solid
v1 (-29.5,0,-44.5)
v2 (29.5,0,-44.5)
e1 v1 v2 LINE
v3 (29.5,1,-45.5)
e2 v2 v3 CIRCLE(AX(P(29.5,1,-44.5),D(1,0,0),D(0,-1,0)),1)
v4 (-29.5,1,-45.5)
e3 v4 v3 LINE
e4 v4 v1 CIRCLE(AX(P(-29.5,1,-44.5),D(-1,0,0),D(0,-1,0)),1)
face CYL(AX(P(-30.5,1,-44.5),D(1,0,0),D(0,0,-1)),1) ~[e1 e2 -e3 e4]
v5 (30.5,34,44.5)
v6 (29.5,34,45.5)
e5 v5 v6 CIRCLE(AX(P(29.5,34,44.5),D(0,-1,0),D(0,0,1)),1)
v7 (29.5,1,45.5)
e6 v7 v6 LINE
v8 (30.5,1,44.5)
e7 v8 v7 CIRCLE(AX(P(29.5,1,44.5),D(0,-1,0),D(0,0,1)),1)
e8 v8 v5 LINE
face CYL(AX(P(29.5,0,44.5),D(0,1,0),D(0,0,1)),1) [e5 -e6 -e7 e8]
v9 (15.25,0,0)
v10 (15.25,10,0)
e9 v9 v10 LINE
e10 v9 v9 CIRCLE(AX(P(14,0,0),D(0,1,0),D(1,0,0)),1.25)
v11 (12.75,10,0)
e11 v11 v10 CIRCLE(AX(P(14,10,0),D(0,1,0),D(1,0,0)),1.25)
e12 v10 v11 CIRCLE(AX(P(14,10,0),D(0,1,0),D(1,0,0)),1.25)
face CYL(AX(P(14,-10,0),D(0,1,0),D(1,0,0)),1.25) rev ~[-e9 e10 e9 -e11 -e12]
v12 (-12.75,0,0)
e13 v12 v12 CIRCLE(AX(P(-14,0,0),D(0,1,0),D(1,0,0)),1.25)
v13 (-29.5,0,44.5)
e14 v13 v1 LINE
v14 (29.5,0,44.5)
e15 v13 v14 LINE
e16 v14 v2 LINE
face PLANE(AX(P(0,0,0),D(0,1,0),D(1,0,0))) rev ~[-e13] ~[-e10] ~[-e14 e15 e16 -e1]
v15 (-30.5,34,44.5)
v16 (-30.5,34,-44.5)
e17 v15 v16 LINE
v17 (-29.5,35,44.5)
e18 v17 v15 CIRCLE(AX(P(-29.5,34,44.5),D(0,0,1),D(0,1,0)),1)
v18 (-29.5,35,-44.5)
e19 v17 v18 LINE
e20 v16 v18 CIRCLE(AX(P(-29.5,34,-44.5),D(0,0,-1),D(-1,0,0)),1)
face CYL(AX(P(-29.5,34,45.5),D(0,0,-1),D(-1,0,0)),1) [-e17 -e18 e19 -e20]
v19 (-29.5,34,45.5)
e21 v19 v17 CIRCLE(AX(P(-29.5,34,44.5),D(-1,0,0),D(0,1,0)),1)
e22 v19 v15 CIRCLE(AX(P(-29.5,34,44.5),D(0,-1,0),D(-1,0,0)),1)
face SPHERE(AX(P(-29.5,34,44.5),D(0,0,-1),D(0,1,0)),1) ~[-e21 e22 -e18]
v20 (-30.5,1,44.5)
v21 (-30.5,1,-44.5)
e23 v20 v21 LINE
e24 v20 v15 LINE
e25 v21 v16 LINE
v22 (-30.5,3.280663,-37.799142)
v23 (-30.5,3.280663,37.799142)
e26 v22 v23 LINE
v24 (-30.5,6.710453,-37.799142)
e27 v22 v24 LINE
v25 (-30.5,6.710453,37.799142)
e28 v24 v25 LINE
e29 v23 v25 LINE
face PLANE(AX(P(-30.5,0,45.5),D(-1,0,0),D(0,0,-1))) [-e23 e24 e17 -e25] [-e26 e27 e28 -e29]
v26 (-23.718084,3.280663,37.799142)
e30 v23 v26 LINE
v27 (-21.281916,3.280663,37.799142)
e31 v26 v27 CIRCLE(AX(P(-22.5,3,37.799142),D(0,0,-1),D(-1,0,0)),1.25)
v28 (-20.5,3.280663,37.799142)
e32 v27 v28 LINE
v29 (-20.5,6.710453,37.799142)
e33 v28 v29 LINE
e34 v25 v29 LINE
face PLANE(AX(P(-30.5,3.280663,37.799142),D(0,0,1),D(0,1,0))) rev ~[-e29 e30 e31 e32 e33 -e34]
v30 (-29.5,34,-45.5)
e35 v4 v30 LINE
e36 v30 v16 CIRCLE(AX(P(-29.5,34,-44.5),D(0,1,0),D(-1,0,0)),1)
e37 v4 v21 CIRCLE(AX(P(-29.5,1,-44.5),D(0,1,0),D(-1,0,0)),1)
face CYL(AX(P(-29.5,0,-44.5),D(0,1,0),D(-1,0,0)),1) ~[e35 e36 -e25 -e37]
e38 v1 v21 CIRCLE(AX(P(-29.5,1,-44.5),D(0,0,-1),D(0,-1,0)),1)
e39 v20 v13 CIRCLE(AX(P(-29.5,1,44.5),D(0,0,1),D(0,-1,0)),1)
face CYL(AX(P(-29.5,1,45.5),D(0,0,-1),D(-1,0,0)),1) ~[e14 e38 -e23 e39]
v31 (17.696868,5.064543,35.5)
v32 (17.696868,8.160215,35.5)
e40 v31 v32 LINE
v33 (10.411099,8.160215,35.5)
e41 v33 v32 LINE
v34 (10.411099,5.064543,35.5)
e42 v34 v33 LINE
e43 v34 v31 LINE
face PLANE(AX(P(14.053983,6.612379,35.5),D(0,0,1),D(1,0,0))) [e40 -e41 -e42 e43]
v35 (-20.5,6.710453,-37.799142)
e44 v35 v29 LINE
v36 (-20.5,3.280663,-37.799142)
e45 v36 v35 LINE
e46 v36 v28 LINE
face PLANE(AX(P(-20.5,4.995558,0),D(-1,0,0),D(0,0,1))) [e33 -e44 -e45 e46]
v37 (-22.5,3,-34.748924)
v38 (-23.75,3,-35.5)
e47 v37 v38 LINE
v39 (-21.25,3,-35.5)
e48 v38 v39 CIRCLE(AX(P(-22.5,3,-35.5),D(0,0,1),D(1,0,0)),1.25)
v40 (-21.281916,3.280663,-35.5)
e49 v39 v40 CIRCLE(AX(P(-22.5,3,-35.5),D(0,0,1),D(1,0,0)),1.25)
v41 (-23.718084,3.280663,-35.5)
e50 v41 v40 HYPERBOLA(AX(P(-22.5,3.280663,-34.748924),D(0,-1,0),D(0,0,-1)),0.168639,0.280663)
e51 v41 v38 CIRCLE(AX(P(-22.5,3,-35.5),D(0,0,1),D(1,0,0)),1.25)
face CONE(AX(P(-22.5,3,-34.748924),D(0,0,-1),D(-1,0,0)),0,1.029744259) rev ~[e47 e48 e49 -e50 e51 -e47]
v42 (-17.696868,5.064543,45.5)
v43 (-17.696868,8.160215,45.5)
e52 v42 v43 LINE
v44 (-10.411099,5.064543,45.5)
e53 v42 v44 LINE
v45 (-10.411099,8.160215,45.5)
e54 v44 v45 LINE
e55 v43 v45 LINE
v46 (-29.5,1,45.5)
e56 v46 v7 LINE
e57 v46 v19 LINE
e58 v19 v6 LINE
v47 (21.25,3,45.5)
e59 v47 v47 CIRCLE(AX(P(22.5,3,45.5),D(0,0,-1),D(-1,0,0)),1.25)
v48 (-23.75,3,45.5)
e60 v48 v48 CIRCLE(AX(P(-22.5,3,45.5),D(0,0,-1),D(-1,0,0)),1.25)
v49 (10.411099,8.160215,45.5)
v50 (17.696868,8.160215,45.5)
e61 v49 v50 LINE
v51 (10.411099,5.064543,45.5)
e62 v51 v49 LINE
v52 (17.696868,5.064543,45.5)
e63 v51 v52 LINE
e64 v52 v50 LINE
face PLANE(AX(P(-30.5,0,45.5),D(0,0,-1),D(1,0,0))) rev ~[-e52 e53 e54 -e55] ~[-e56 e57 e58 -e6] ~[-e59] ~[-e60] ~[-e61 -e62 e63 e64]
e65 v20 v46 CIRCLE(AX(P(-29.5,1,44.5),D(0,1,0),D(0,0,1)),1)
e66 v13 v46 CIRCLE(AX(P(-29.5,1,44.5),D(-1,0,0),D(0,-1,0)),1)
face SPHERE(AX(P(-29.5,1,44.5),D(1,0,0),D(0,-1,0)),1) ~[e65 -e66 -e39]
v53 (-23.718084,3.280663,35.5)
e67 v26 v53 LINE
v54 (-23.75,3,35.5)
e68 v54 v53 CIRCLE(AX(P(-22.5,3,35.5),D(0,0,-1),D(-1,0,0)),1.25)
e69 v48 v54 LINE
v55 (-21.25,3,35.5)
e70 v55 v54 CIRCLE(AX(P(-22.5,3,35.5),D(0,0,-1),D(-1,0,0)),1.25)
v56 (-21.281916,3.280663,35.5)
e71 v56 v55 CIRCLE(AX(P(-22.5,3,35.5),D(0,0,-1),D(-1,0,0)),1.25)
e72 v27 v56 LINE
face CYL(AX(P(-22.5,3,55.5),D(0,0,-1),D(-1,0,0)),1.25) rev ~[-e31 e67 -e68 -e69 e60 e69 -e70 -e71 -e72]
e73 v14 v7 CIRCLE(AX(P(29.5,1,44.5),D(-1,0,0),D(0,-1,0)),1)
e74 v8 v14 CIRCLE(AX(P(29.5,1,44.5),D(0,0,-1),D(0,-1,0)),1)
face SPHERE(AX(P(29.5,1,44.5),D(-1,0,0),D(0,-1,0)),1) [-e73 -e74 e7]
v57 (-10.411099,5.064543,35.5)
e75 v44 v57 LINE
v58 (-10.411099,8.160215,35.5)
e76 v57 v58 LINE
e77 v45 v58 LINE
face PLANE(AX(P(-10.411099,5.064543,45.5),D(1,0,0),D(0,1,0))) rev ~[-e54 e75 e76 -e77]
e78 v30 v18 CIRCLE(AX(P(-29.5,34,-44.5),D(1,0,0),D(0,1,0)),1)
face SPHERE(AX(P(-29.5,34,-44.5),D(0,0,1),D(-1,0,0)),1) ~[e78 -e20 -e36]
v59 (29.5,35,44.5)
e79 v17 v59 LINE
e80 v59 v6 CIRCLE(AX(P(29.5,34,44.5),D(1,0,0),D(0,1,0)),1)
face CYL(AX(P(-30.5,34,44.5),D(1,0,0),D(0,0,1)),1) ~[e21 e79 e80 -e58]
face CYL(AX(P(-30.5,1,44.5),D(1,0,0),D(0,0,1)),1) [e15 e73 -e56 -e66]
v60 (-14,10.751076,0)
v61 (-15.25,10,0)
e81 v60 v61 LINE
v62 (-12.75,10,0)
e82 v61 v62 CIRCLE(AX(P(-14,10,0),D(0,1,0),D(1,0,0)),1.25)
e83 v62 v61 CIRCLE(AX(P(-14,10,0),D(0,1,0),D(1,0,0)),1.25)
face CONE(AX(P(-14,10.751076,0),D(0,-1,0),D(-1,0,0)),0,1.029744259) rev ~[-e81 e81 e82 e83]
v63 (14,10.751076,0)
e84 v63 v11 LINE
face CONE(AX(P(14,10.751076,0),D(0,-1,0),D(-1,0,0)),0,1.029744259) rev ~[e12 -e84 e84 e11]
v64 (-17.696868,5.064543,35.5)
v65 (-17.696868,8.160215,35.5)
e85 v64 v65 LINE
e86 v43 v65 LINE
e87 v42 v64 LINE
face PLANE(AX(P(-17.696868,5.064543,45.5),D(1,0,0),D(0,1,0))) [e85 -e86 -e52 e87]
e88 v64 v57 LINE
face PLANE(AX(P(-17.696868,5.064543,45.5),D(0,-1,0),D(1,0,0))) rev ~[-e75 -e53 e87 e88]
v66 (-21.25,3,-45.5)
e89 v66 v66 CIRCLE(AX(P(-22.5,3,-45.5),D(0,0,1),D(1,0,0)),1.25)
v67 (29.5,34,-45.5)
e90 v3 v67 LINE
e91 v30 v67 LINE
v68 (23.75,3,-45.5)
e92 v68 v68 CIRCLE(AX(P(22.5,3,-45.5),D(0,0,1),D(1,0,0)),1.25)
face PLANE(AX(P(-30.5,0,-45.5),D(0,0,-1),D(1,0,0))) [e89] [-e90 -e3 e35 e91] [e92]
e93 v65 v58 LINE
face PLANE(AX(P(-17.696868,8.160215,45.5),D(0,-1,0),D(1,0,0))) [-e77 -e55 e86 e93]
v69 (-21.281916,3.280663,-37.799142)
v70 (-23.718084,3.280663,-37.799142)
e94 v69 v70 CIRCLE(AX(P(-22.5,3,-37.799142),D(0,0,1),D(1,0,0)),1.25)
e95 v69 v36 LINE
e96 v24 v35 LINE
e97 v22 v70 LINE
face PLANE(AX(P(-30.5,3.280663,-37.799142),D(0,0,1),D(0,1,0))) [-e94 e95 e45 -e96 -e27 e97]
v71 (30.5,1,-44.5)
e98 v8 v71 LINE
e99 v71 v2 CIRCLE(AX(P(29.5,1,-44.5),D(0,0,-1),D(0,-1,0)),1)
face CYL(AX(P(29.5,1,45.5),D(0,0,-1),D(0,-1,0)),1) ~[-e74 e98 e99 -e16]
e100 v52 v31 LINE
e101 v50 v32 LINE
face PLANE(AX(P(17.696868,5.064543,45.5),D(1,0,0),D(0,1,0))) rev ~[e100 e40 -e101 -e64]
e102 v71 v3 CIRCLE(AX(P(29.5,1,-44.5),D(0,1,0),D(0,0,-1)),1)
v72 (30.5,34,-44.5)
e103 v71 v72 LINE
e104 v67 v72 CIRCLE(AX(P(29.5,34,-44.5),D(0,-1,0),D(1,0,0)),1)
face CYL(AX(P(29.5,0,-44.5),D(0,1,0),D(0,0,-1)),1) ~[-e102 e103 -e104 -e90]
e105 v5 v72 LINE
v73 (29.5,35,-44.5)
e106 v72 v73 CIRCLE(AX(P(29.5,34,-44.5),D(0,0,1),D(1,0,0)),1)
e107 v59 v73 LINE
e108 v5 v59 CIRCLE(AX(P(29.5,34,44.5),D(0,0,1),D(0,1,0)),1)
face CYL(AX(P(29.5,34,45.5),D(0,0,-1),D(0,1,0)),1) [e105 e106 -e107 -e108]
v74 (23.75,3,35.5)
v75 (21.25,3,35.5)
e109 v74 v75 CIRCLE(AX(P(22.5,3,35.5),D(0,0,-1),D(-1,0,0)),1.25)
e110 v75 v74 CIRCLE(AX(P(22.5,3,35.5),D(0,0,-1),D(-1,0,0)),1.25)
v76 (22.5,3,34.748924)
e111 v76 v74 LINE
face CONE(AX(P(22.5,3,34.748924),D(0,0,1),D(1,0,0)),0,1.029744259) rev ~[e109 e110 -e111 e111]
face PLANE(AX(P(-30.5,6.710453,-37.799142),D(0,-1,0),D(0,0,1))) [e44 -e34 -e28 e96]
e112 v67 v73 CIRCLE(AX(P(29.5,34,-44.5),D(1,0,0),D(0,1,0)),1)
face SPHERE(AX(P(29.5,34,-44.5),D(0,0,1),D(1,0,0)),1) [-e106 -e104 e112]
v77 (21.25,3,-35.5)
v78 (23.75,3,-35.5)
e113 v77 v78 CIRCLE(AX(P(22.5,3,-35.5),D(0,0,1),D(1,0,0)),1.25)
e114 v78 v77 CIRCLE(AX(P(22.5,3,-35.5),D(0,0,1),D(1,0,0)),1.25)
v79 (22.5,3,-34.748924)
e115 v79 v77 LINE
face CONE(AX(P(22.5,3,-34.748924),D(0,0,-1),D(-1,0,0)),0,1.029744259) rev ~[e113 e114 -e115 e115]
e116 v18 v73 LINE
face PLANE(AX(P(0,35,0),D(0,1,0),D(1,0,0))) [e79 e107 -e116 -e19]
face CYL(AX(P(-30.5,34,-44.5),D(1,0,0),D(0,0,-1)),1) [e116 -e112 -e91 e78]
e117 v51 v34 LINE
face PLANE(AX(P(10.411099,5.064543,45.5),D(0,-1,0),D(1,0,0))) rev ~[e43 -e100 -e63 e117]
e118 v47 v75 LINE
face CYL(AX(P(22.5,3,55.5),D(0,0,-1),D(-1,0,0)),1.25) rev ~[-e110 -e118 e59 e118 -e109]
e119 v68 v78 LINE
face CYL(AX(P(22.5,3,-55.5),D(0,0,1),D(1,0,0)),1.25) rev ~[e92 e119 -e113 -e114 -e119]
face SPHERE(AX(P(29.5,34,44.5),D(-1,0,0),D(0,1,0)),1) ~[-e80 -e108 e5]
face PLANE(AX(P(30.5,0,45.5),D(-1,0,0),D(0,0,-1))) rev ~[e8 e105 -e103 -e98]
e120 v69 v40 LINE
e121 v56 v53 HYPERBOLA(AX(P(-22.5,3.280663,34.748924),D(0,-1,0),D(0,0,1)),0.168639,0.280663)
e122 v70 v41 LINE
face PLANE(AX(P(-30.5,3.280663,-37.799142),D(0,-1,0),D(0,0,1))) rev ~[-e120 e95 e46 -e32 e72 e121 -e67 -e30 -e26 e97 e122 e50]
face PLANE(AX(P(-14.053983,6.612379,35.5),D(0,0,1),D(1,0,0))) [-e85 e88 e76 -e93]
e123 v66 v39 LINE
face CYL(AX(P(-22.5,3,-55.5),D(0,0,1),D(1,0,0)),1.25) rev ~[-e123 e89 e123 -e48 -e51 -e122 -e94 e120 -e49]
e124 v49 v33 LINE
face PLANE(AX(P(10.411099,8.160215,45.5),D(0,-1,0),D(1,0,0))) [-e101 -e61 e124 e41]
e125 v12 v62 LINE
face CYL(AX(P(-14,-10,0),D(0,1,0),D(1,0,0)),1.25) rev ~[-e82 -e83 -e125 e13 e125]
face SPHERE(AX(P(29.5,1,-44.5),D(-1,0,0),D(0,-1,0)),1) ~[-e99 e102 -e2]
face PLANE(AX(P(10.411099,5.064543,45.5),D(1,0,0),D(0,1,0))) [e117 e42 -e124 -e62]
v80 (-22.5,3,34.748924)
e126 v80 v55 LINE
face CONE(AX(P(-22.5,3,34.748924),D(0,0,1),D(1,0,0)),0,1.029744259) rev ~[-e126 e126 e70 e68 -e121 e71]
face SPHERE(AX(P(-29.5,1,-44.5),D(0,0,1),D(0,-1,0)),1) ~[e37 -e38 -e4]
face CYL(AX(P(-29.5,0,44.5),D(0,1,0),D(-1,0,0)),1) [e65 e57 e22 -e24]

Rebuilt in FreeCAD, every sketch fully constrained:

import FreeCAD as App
import Part
import Sketcher


def edges_at(feature, points):
    """Names of the edges that pass closest to the given points."""
    edges = feature.Shape.Edges
    near = lambda p: min(range(len(edges)), key=lambda i: edges[i].distToShape(Part.Vertex(*p))[0])
    return sorted({f"Edge{near(p) + 1}" for p in points})


def add_polygon(sketch, points):
    """Adds a closed chain of lines whose ends are joined by coincident constraints."""
    first, n = sketch.GeometryCount, len(points)
    for a, b in zip(points, points[1:] + points[:1]):
        sketch.addGeometry(Part.LineSegment(App.Vector(*a, 0), App.Vector(*b, 0)), False)
    for i in range(n):
        sketch.addConstraint(Sketcher.Constraint("Coincident", first + i, 2, first + (i + 1) % n, 1))

doc = App.newDocument("Part")
body = doc.addObject("PartDesign::Body", "Body")

sketch1 = body.newObject("Sketcher::SketchObject", "Sketch")
sketch1.AttachmentSupport = (doc.getObject("XZ_Plane"), [""])
sketch1.MapMode = "FlatFace"
add_polygon(sketch1, [(-30, -46), (-30, 46), (30, 46), (30, -46)])
sketch1.addConstraint(Sketcher.Constraint("Vertical", 0))
sketch1.addConstraint(Sketcher.Constraint("Horizontal", 1))
sketch1.addConstraint(Sketcher.Constraint("Vertical", 2))
sketch1.addConstraint(Sketcher.Constraint("Horizontal", 3))
sketch1.addConstraint(Sketcher.Constraint("Symmetric", 0, 2, 2, 2, -1, 1))
sketch1.addConstraint(Sketcher.Constraint("DistanceX", 1, 1, 1, 2, 61.0))
sketch1.addConstraint(Sketcher.Constraint("DistanceY", 0, 1, 0, 2, 91.0))
pad1 = body.newObject("PartDesign::Pad", "Pad")
pad1.Profile = sketch1
pad1.Length = 35
pad1.Reversed = True

sketch2 = body.newObject("Sketcher::SketchObject", "Sketch001")
sketch2.AttachmentSupport = (doc.getObject("XY_Plane"), [""])
sketch2.MapMode = "FlatFace"
sketch2.AttachmentOffset = App.Placement(App.Vector(0, 0, 45.5), App.Rotation())
sketch2.addGeometry(Part.Circle(App.Vector(-22.5, 3, 0), App.Vector(0, 0, 1), 1.2), False)
sketch2.addGeometry(Part.Circle(App.Vector(22.5, 3, 0), App.Vector(0, 0, 1), 1.2), False)
sketch2.addConstraint(Sketcher.Constraint("Equal", 0, 1))
sketch2.addConstraint(Sketcher.Constraint("Symmetric", 0, 3, 1, 3, -2))
sketch2.addConstraint(Sketcher.Constraint("Diameter", 0, 2.5))
sketch2.addConstraint(Sketcher.Constraint("DistanceY", -1, 1, 0, 3, 3.0))
sketch2.addConstraint(Sketcher.Constraint("DistanceX", 0, 3, 1, 3, 45.0))
doc.recompute()
hole = body.newObject("PartDesign::Hole", "Hole")
hole.Profile = sketch2
hole.ThreadType = "None"
hole.Diameter = 2.5
hole.DepthType = "Dimension"
hole.Depth = 10
hole.DrillPoint = "Angled"
hole.DrillPointAngle = 118

sketch3 = body.newObject("Sketcher::SketchObject", "Sketch002")
sketch3.AttachmentSupport = (doc.getObject("XY_Plane"), [""])
sketch3.MapMode = "FlatFace"
sketch3.AttachmentOffset = App.Placement(App.Vector(0, 0, -45.5), App.Rotation())
sketch3.addGeometry(Part.Circle(App.Vector(22.5, 3, 0), App.Vector(0, 0, 1), 1.2), False)
sketch3.addGeometry(Part.Circle(App.Vector(-22.5, 3, 0), App.Vector(0, 0, 1), 1.2), False)
sketch3.addConstraint(Sketcher.Constraint("Equal", 0, 1))
sketch3.addConstraint(Sketcher.Constraint("Symmetric", 0, 3, 1, 3, -2))
sketch3.addConstraint(Sketcher.Constraint("Diameter", 0, 2.5))
sketch3.addConstraint(Sketcher.Constraint("DistanceY", -1, 1, 0, 3, 3.0))
sketch3.addConstraint(Sketcher.Constraint("DistanceX", 1, 3, 0, 3, 45.0))
doc.recompute()
hole2 = body.newObject("PartDesign::Hole", "Hole001")
hole2.Profile = sketch3
hole2.ThreadType = "None"
hole2.Diameter = 2.5
hole2.DepthType = "Dimension"
hole2.Depth = 10
hole2.DrillPoint = "Angled"
hole2.DrillPointAngle = 118
hole2.Reversed = True

sketch4 = body.newObject("Sketcher::SketchObject", "Sketch003")
sketch4.AttachmentSupport = (doc.getObject("XZ_Plane"), [""])
sketch4.MapMode = "FlatFace"
sketch4.addGeometry(Part.Circle(App.Vector(-14, 0, 0), App.Vector(0, 0, 1), 1.2), False)
sketch4.addGeometry(Part.Circle(App.Vector(14, 0, 0), App.Vector(0, 0, 1), 1.2), False)
sketch4.addConstraint(Sketcher.Constraint("Equal", 0, 1))
sketch4.addConstraint(Sketcher.Constraint("Symmetric", 0, 3, 1, 3, -1, 1))
sketch4.addConstraint(Sketcher.Constraint("PointOnObject", 0, 3, -1))
sketch4.addConstraint(Sketcher.Constraint("Diameter", 0, 2.5))
sketch4.addConstraint(Sketcher.Constraint("DistanceX", 0, 3, -1, 1, 14.0))
doc.recompute()
hole3 = body.newObject("PartDesign::Hole", "Hole002")
hole3.Profile = sketch4
hole3.ThreadType = "None"
hole3.Diameter = 2.5
hole3.DepthType = "Dimension"
hole3.Depth = 10
hole3.DrillPoint = "Angled"
hole3.DrillPointAngle = 118
doc.recompute()

fillet = body.newObject("PartDesign::Fillet", "Fillet")
fillet.Base = (hole3, edges_at(hole3, [
    (-30.5, 35, 0),
    (0, 35, 45.5),
    (30.5, 35, 0),
    (0, 0, 45.5),
    (-30.5, 0, 0),
    (0, 0, -45.5),
    (30.5, 0, 0),
    (30.5, 17.5, 45.5),
    (-30.5, 17.5, 45.5),
    (-30.5, 17.5, -45.5),
    (30.5, 17.5, -45.5),
    (0, 35, -45.5),
]))
fillet.Radius = 1

sketch5 = body.newObject("Sketcher::SketchObject", "Sketch004")
sketch5.AttachmentSupport = (doc.getObject("XY_Plane"), [""])
sketch5.MapMode = "FlatFace"
sketch5.AttachmentOffset = App.Placement(App.Vector(0, 0, 45.5), App.Rotation())
add_polygon(sketch5, [(10.4, 8.2), (10.4, 5.1), (17.7, 5.1), (17.7, 8.2)])
add_polygon(sketch5, [(-17.7, 8.2), (-17.7, 5.1), (-10.4, 5.1), (-10.4, 8.2)])
sketch5.addConstraint(Sketcher.Constraint("Vertical", 0))
sketch5.addConstraint(Sketcher.Constraint("Horizontal", 1))
sketch5.addConstraint(Sketcher.Constraint("Vertical", 2))
sketch5.addConstraint(Sketcher.Constraint("Horizontal", 3))
sketch5.addConstraint(Sketcher.Constraint("Vertical", 4))
sketch5.addConstraint(Sketcher.Constraint("Horizontal", 5))
sketch5.addConstraint(Sketcher.Constraint("Vertical", 6))
sketch5.addConstraint(Sketcher.Constraint("Horizontal", 7))
sketch5.addConstraint(Sketcher.Constraint("Symmetric", 1, 2, 4, 2, -2))
sketch5.addConstraint(Sketcher.Constraint("Symmetric", 3, 2, 6, 2, -2))
sketch5.addConstraint(Sketcher.Constraint("DistanceX", 1, 1, 1, 2, 7.285769))
sketch5.addConstraint(Sketcher.Constraint("DistanceX", -1, 1, 0, 2, 10.411099))
sketch5.addConstraint(Sketcher.Constraint("DistanceY", 0, 2, 0, 1, 3.095672))
sketch5.addConstraint(Sketcher.Constraint("DistanceY", -1, 1, 0, 2, 5.064543))
pocket1 = body.newObject("PartDesign::Pocket", "Pocket")
pocket1.Profile = sketch5
pocket1.Length = 10

sketch6 = body.newObject("Sketcher::SketchObject", "Sketch005")
sketch6.AttachmentSupport = (doc.getObject("YZ_Plane"), [""])
sketch6.MapMode = "FlatFace"
sketch6.AttachmentOffset = App.Placement(App.Vector(0, 0, -30.5), App.Rotation())
add_polygon(sketch6, [(6.7, -37.8), (3.3, -37.8), (3.3, 37.8), (6.7, 37.8)])
sketch6.addConstraint(Sketcher.Constraint("Horizontal", 0))
sketch6.addConstraint(Sketcher.Constraint("Vertical", 1))
sketch6.addConstraint(Sketcher.Constraint("Horizontal", 2))
sketch6.addConstraint(Sketcher.Constraint("Vertical", 3))
sketch6.addConstraint(Sketcher.Constraint("DistanceX", 0, 2, 0, 1, 3.42979))
sketch6.addConstraint(Sketcher.Constraint("DistanceY", 1, 1, 1, 2, 75.598284))
sketch6.addConstraint(Sketcher.Constraint("DistanceX", -1, 1, 0, 2, 3.280663))
sketch6.addConstraint(Sketcher.Constraint("DistanceY", 0, 2, -1, 1, 37.799142))
pocket2 = body.newObject("PartDesign::Pocket", "Pocket001")
pocket2.Profile = sketch6
pocket2.Length = 10
pocket2.Reversed = True

doc.recompute()
